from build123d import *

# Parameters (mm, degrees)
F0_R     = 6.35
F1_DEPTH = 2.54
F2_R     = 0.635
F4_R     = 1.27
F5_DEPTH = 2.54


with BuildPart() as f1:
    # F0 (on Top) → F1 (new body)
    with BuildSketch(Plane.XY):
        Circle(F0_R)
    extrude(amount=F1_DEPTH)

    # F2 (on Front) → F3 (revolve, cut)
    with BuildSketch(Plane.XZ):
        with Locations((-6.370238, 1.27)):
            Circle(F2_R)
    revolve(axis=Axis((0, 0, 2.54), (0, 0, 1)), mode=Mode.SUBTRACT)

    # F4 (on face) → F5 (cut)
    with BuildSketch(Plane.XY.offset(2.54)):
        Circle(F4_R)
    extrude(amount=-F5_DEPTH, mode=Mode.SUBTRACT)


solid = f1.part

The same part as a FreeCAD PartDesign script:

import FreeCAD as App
import Part
import Sketcher
from FreeCAD import Vector
Q = App.Units.Quantity

doc = App.newDocument("Part")
params = doc.addObject("Spreadsheet::Sheet", "Params")
for row, (alias, value) in enumerate([
    ("sketch1_diameter", "0.5 in"),
    ("pad1_length", "0.1 in"),
    ("sketch2_diameter", "0.05 in"),
    ("groove_angle", "360 deg"),
    ("sketch3_diameter", "0.1 in"),
    ("pocket1_length", "0.1 in"),
], start=1):
    params.set(f"A{row}", alias)
    params.set(f"B{row}", "=" + value)
    params.setAlias(f"B{row}", alias)

body = doc.addObject("PartDesign::Body", "Body")

# Sketch on XY plane
sketch1 = body.newObject("Sketcher::SketchObject", "Sketch")
sketch1.AttachmentSupport = (doc.getObject("XY_Plane"), [""])
sketch1.MapMode = "FlatFace"
sketch1.addGeometry(Part.Circle(Vector(0, 0, 0), Vector(0, 0, 1), 6), False)
sketch1.addConstraint(Sketcher.Constraint("Coincident", 0, 3, -1, 1))
sketch1.addConstraint(Sketcher.Constraint("Diameter", 0, Q("0.5 in")))
sketch1.setExpression("Constraints[1]", "Params.sketch1_diameter")
pad1 = body.newObject("PartDesign::Pad", "Pad")
pad1.Profile = sketch1
pad1.setExpression("Length", "Params.pad1_length")

# Sketch on XZ plane
sketch2 = body.newObject("Sketcher::SketchObject", "Sketch001")
sketch2.AttachmentSupport = (doc.getObject("XZ_Plane"), [""])
sketch2.MapMode = "FlatFace"
sketch2.addGeometry(Part.Circle(Vector(-6.4, 1.3, 0), Vector(0, 0, 1), 0.6), False)
sketch2.addConstraint(Sketcher.Constraint("Diameter", 0, Q("0.05 in")))
sketch2.addConstraint(Sketcher.Constraint("DistanceY", -1, 1, 0, 3, Q("0.05 in")))
sketch2.addConstraint(Sketcher.Constraint("DistanceX", 0, 3, -1, 1, 6.370238))
sketch2.setExpression("Constraints[0]", "Params.sketch2_diameter")
groove = body.newObject("PartDesign::Groove", "Groove")
groove.Profile = sketch2
groove.ReferenceAxis = (sketch2, ["V_Axis"])
groove.setExpression("Angle", "Params.groove_angle")

# Sketch on XY plane
sketch3 = body.newObject("Sketcher::SketchObject", "Sketch002")
sketch3.AttachmentSupport = (doc.getObject("XY_Plane"), [""])
sketch3.MapMode = "FlatFace"
sketch3.AttachmentOffset = App.Placement(Vector(0, 0, 0.1 * 25.4), App.Rotation())
sketch3.addGeometry(Part.Circle(Vector(0, 0, 0), Vector(0, 0, 1), 1.3), False)
sketch3.addConstraint(Sketcher.Constraint("Coincident", 0, 3, -1, 1))
sketch3.addConstraint(Sketcher.Constraint("Diameter", 0, Q("0.1 in")))
sketch3.setExpression("Constraints[1]", "Params.sketch3_diameter")
pocket1 = body.newObject("PartDesign::Pocket", "Pocket")
pocket1.Profile = sketch3
pocket1.setExpression("Length", "Params.pocket1_length")

doc.recompute()
